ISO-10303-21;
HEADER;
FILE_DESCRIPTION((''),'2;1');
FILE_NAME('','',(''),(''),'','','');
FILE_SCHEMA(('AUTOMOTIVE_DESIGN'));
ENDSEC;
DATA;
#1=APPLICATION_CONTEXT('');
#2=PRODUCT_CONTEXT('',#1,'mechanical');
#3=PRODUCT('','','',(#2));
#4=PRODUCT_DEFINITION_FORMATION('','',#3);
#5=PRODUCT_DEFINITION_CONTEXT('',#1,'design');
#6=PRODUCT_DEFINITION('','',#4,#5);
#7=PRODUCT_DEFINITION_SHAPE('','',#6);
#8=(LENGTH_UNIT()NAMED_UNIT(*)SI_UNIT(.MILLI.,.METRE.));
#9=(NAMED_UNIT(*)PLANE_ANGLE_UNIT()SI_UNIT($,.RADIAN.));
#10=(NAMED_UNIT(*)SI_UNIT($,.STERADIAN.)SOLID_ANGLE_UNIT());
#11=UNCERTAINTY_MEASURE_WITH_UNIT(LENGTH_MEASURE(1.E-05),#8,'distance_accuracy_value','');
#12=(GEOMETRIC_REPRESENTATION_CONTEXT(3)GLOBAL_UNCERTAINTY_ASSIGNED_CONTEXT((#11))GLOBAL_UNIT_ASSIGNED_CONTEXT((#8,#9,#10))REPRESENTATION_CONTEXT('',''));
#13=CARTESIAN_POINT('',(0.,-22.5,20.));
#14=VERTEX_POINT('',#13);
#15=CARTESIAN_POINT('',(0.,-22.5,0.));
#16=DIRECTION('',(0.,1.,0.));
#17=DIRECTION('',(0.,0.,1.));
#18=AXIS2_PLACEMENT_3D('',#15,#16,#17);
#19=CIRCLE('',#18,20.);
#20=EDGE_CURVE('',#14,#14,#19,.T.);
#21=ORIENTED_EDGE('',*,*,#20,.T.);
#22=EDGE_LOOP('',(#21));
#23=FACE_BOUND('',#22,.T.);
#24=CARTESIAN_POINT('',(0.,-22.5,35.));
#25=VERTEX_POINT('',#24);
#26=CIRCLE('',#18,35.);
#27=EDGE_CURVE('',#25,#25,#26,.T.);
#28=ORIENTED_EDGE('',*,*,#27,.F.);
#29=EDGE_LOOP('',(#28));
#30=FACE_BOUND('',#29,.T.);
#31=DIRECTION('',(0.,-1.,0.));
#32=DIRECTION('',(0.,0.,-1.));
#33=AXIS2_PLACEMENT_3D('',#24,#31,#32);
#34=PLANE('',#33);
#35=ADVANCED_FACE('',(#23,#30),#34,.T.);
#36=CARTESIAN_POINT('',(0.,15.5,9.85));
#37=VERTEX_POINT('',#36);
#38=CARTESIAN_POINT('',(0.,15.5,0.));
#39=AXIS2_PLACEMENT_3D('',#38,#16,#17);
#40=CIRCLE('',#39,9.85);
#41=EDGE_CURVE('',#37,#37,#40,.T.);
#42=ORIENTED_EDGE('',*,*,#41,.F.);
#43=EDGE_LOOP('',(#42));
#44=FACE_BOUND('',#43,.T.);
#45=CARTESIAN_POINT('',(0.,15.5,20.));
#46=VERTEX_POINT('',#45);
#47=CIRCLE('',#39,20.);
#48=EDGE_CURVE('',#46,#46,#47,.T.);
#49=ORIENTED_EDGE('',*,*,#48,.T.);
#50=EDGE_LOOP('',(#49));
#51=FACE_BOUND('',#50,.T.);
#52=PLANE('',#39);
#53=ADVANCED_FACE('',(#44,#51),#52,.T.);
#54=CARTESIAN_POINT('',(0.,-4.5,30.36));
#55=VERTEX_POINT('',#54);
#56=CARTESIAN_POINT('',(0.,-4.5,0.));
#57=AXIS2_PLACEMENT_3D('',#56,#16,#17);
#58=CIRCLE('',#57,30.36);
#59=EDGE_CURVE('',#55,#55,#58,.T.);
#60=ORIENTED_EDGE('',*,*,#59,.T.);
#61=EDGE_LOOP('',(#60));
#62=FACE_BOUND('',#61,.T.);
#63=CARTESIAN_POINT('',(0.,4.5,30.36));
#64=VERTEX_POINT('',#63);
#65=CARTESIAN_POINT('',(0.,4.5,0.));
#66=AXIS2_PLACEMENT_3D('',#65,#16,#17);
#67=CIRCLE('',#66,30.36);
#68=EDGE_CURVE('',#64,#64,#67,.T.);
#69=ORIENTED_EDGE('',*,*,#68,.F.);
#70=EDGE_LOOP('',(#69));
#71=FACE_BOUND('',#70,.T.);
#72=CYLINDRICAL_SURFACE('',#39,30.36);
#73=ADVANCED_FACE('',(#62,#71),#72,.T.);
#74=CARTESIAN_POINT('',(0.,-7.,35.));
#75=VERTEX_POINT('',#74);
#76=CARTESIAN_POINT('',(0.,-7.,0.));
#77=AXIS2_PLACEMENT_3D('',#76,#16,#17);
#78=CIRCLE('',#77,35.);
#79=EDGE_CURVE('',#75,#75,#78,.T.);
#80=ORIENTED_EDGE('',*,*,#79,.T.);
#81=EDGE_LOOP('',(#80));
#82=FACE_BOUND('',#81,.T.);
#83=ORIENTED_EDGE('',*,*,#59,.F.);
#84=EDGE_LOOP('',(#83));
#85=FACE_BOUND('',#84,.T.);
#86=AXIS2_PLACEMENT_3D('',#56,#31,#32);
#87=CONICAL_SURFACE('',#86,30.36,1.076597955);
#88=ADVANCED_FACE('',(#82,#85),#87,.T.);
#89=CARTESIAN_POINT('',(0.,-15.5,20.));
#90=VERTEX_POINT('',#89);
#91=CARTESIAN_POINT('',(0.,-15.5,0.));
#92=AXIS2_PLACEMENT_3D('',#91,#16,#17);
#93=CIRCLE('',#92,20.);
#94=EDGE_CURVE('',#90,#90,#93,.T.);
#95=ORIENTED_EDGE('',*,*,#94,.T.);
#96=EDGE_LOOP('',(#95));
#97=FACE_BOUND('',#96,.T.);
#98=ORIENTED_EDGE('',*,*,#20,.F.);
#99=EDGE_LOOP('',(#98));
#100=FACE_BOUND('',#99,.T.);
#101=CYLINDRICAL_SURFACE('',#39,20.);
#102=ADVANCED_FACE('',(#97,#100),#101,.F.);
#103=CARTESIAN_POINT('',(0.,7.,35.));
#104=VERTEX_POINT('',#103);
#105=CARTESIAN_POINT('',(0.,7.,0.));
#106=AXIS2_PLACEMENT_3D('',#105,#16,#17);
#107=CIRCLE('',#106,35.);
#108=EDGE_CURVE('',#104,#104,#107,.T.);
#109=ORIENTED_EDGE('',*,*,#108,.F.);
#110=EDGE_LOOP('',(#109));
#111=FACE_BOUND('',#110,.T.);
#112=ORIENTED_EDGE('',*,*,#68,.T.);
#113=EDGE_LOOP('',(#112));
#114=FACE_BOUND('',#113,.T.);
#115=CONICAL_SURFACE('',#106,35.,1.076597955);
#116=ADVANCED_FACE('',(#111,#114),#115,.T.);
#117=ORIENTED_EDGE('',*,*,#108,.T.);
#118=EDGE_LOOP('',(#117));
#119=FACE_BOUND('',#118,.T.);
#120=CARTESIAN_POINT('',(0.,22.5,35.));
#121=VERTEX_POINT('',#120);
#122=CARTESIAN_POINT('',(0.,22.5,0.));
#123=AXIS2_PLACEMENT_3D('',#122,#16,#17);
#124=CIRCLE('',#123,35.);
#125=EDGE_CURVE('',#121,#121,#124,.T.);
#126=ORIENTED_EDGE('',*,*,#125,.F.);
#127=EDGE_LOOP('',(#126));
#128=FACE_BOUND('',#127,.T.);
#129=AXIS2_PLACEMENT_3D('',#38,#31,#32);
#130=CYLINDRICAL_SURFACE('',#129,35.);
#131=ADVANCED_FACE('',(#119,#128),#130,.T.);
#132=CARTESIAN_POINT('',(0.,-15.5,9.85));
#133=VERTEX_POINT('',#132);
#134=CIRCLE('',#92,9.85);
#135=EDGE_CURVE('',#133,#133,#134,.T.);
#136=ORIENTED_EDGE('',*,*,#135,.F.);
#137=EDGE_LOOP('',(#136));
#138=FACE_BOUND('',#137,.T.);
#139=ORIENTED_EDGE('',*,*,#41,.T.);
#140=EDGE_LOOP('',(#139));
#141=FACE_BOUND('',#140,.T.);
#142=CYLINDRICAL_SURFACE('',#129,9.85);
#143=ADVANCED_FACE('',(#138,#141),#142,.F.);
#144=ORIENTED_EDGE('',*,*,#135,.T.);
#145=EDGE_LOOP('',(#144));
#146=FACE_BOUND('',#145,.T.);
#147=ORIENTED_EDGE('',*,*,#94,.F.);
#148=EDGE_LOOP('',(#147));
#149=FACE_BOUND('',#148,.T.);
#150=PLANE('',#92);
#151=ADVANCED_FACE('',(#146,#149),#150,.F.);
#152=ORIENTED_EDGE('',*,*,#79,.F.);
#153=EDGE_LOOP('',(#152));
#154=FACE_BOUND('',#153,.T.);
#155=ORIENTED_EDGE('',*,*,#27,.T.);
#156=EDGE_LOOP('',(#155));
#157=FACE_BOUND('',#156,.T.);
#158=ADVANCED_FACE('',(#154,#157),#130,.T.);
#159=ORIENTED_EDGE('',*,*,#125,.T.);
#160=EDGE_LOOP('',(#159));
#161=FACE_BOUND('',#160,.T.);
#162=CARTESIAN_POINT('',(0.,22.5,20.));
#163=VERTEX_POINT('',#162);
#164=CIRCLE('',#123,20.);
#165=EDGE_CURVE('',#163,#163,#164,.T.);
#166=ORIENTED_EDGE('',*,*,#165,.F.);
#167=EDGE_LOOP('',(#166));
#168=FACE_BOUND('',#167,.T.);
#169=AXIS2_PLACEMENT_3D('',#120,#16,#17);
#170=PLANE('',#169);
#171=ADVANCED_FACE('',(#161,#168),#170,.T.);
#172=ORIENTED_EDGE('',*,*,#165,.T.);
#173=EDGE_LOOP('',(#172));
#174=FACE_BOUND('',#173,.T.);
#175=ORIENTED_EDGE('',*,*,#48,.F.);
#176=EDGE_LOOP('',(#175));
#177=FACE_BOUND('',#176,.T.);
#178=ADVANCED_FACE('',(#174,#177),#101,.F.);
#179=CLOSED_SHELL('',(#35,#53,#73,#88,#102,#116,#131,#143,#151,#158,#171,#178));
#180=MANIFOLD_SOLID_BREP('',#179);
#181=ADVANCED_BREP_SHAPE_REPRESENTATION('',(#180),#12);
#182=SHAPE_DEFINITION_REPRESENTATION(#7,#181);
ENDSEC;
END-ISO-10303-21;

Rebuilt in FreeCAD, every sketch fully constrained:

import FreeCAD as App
import Part
import Sketcher

V = App.Vector
Q = App.Units.Quantity

doc = App.newDocument("Part")
body = doc.addObject("PartDesign::Body", "Body")

sketch1 = body.newObject("Sketcher::SketchObject", "Sketch")
sketch1.AttachmentSupport = (doc.getObject("XZ_Plane"), [""])
sketch1.MapMode = "FlatFace"
sketch1.addGeometry([
    Part.Circle(V(0, 0, 0), V(0, 0, 1), 35),
    Part.Circle(V(0, 0, 0), V(0, 0, 1), 10),
], False)
sketch1.addConstraint([
    Sketcher.Constraint("Coincident", 0, 3, -1, 1),
    Sketcher.Constraint("Coincident", 1, 3, -1, 1),
    Sketcher.Constraint("Diameter", 0, Q("70 mm")),
    Sketcher.Constraint("Diameter", 1, Q("19.7 mm")),
])
pad1 = body.newObject("PartDesign::Pad", "Pad")
pad1.Profile = sketch1
pad1.Length = 31
pad1.Midplane = True

sketch2 = body.newObject("Sketcher::SketchObject", "Sketch001")
sketch2.AttachmentSupport = (doc.getObject("YZ_Plane"), [""])
sketch2.MapMode = "FlatFace"
sketch2.addGeometry([
    Part.LineSegment(V(-7, 35, 0), V(-4, 30, 0)),
    Part.LineSegment(V(-4, 30, 0), V(4, 30, 0)),
    Part.LineSegment(V(4, 30, 0), V(7, 35, 0)),
    Part.LineSegment(V(7, 35, 0), V(-7, 35, 0)),
], False)
sketch2.addConstraint([
    Sketcher.Constraint("Coincident", 0, 2, 1, 1),
    Sketcher.Constraint("Coincident", 1, 2, 2, 1),
    Sketcher.Constraint("Coincident", 2, 2, 3, 1),
    Sketcher.Constraint("Coincident", 3, 2, 0, 1),
    Sketcher.Constraint("Horizontal", 1),
    Sketcher.Constraint("Horizontal", 3),
    Sketcher.Constraint("Equal", 0, 2),
    Sketcher.Constraint("DistanceX", 1, 1, 1, 2, Q("9 mm")),
    Sketcher.Constraint("DistanceX", 3, 2, 3, 1, Q("14 mm")),
    Sketcher.Constraint("DistanceX", -1, 1, 2, 2, Q("7 mm")),
    Sketcher.Constraint("DistanceY", -1, 1, 2, 2, Q("35 mm")),
    Sketcher.Constraint("DistanceY", -1, 1, 0, 2, Q("30.36 mm")),
])
groove = body.newObject("PartDesign::Groove", "Groove")
groove.Profile = sketch2
groove.ReferenceAxis = (sketch2, ["H_Axis"])
groove.Angle = 360

sketch3 = body.newObject("Sketcher::SketchObject", "Sketch002")
sketch3.AttachmentSupport = (doc.getObject("YZ_Plane"), [""])
sketch3.MapMode = "FlatFace"
sketch3.addGeometry([
    Part.LineSegment(V(22, 35, 0), V(16, 35, 0)),
    Part.LineSegment(V(16, 35, 0), V(16, 20, 0)),
    Part.LineSegment(V(16, 20, 0), V(22, 20, 0)),
    Part.LineSegment(V(22, 20, 0), V(22, 35, 0)),
    Part.LineSegment(V(-16, 35, 0), V(-22, 35, 0)),
    Part.LineSegment(V(-22, 35, 0), V(-22, 20, 0)),
    Part.LineSegment(V(-22, 20, 0), V(-16, 20, 0)),
    Part.LineSegment(V(-16, 20, 0), V(-16, 35, 0)),
], False)
sketch3.addConstraint([
    Sketcher.Constraint("Coincident", 0, 2, 1, 1),
    Sketcher.Constraint("Coincident", 1, 2, 2, 1),
    Sketcher.Constraint("Coincident", 2, 2, 3, 1),
    Sketcher.Constraint("Coincident", 3, 2, 0, 1),
    Sketcher.Constraint("Coincident", 4, 2, 5, 1),
    Sketcher.Constraint("Coincident", 5, 2, 6, 1),
    Sketcher.Constraint("Coincident", 6, 2, 7, 1),
    Sketcher.Constraint("Coincident", 7, 2, 4, 1),
    Sketcher.Constraint("Horizontal", 0),
    Sketcher.Constraint("Vertical", 1),
    Sketcher.Constraint("Horizontal", 2),
    Sketcher.Constraint("Vertical", 3),
    Sketcher.Constraint("Horizontal", 4),
    Sketcher.Constraint("Vertical", 5),
    Sketcher.Constraint("Horizontal", 6),
    Sketcher.Constraint("Vertical", 7),
    Sketcher.Constraint("Symmetric", 3, 2, 4, 2, -2),
    Sketcher.Constraint("Symmetric", 1, 2, 6, 2, -2),
    Sketcher.Constraint("DistanceX", 0, 2, 0, 1, Q("7 mm")),
    Sketcher.Constraint("DistanceY", 1, 2, 1, 1, Q("15 mm")),
    Sketcher.Constraint("DistanceY", -1, 1, 0, 2, Q("35 mm")),
    Sketcher.Constraint("DistanceX", 4, 2, 0, 2, Q("38 mm")),
])
revolution = body.newObject("PartDesign::Revolution", "Revolution")
revolution.Profile = sketch3
revolution.ReferenceAxis = (sketch3, ["H_Axis"])
revolution.Angle = 360

doc.recompute()
